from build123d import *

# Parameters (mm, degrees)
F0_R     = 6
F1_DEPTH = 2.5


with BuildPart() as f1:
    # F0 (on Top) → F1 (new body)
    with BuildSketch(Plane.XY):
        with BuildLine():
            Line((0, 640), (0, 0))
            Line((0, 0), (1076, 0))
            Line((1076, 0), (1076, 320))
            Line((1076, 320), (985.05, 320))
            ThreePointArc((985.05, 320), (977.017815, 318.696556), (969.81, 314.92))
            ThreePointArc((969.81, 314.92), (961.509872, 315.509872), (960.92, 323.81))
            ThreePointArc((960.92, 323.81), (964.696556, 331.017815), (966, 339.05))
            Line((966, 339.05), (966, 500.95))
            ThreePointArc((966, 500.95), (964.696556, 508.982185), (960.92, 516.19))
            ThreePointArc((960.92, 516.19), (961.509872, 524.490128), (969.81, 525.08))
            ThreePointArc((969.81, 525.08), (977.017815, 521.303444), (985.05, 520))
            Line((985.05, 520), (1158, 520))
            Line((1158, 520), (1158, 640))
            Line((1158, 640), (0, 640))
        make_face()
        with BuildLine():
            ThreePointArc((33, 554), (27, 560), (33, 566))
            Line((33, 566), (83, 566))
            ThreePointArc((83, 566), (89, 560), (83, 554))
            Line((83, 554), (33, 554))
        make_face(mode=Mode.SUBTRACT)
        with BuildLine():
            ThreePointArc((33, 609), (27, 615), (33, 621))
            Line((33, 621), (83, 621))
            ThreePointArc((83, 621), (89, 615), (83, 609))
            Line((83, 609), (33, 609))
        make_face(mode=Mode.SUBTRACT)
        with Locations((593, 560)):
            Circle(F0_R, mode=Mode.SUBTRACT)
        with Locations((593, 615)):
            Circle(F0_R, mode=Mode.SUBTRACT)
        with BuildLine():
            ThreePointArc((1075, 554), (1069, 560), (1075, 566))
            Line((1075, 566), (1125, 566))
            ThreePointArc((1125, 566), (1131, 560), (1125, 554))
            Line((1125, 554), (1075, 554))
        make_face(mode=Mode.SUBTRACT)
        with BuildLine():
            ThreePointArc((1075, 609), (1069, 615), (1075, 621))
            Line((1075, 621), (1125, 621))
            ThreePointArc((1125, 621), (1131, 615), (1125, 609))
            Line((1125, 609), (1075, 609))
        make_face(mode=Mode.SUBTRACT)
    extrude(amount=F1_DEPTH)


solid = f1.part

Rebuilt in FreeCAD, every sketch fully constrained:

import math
import FreeCAD as App
import Part
import Sketcher
from FreeCAD import Vector

doc = App.newDocument("Part")
body = doc.addObject("PartDesign::Body", "Body")

# Sketch on XY plane
sketch1 = body.newObject("Sketcher::SketchObject", "Sketch")
sketch1.AttachmentSupport = (doc.getObject("XY_Plane"), [""])
sketch1.MapMode = "FlatFace"
sketch1.addGeometry(Part.LineSegment(Vector(0, 640, 0), Vector(0, 0, 0)), False)
sketch1.addGeometry(Part.LineSegment(Vector(0, 0, 0), Vector(1076, 0, 0)), False)
sketch1.addGeometry(Part.LineSegment(Vector(1076, 0, 0), Vector(1076, 320, 0)), False)
sketch1.addGeometry(Part.LineSegment(Vector(1076, 320, 0), Vector(985.05, 320, 0)), False)
sketch1.addGeometry(Part.ArcOfCircle(Part.Circle(Vector(985.049999, 294.600003, 0), Vector(0, 0, 1), 25.399997), math.radians(89.999998), math.radians(126.8699)), False)
sketch1.addGeometry(Part.ArcOfCircle(Part.Circle(Vector(966, 320, 0), Vector(0, 0, 1), 6.35), math.radians(143.130103), math.radians(306.869897)), False)
sketch1.addGeometry(Part.ArcOfCircle(Part.Circle(Vector(940.600003, 339.049999, 0), Vector(0, 0, 1), 25.399997), math.radians(-36.8699), math.radians(0.000002)), False)
sketch1.addGeometry(Part.LineSegment(Vector(966, 339.05, 0), Vector(966, 500.95, 0)), False)
sketch1.addGeometry(Part.ArcOfCircle(Part.Circle(Vector(940.600003, 500.950001, 0), Vector(0, 0, 1), 25.399997), math.radians(-0.000002), math.radians(36.8699)), False)
sketch1.addGeometry(Part.ArcOfCircle(Part.Circle(Vector(966, 520, 0), Vector(0, 0, 1), 6.35), math.radians(53.130103), math.radians(216.869897)), False)
sketch1.addGeometry(Part.ArcOfCircle(Part.Circle(Vector(985.049999, 545.399997, 0), Vector(0, 0, 1), 25.399997), math.radians(-126.8699), math.radians(-89.999998)), False)
sketch1.addGeometry(Part.LineSegment(Vector(985.05, 520, 0), Vector(1158, 520, 0)), False)
sketch1.addGeometry(Part.LineSegment(Vector(1158, 520, 0), Vector(1158, 640, 0)), False)
sketch1.addGeometry(Part.LineSegment(Vector(1158, 640, 0), Vector(0, 640, 0)), False)
sketch1.addGeometry(Part.LineSegment(Vector(83, 554, 0), Vector(33, 554, 0)), False)
sketch1.addGeometry(Part.ArcOfCircle(Part.Circle(Vector(33, 560, 0), Vector(0, 0, 1), 6), math.radians(90), math.radians(270)), False)
sketch1.addGeometry(Part.LineSegment(Vector(33, 566, 0), Vector(83, 566, 0)), False)
sketch1.addGeometry(Part.ArcOfCircle(Part.Circle(Vector(83, 560, 0), Vector(0, 0, 1), 6), math.radians(-90), math.radians(90)), False)
sketch1.addGeometry(Part.Circle(Vector(593, 560, 0), Vector(0, 0, 1), 6), False)
sketch1.addGeometry(Part.LineSegment(Vector(1125, 554, 0), Vector(1075, 554, 0)), False)
sketch1.addGeometry(Part.ArcOfCircle(Part.Circle(Vector(1075, 560, 0), Vector(0, 0, 1), 6), math.radians(90), math.radians(270)), False)
sketch1.addGeometry(Part.LineSegment(Vector(1075, 566, 0), Vector(1125, 566, 0)), False)
sketch1.addGeometry(Part.ArcOfCircle(Part.Circle(Vector(1125, 560, 0), Vector(0, 0, 1), 6), math.radians(-90), math.radians(90)), False)
sketch1.addGeometry(Part.LineSegment(Vector(83, 609, 0), Vector(33, 609, 0)), False)
sketch1.addGeometry(Part.ArcOfCircle(Part.Circle(Vector(33, 615, 0), Vector(0, 0, 1), 6), math.radians(90), math.radians(270)), False)
sketch1.addGeometry(Part.LineSegment(Vector(33, 621, 0), Vector(83, 621, 0)), False)
sketch1.addGeometry(Part.ArcOfCircle(Part.Circle(Vector(83, 615, 0), Vector(0, 0, 1), 6), math.radians(-90), math.radians(90)), False)
sketch1.addGeometry(Part.Circle(Vector(593, 615, 0), Vector(0, 0, 1), 6), False)
sketch1.addGeometry(Part.LineSegment(Vector(1125, 609, 0), Vector(1075, 609, 0)), False)
sketch1.addGeometry(Part.ArcOfCircle(Part.Circle(Vector(1075, 615, 0), Vector(0, 0, 1), 6), math.radians(90), math.radians(270)), False)
sketch1.addGeometry(Part.LineSegment(Vector(1075, 621, 0), Vector(1125, 621, 0)), False)
sketch1.addGeometry(Part.ArcOfCircle(Part.Circle(Vector(1125, 615, 0), Vector(0, 0, 1), 6), math.radians(-90), math.radians(90)), False)
sketch1.addConstraint(Sketcher.Constraint("Coincident", 0, 2, 1, 1))
sketch1.addConstraint(Sketcher.Constraint("Coincident", 1, 2, 2, 1))
sketch1.addConstraint(Sketcher.Constraint("Coincident", 2, 2, 3, 1))
sketch1.addConstraint(Sketcher.Constraint("Tangent", 3, 2, 4, 1))
sketch1.addConstraint(Sketcher.Constraint("Tangent", 4, 2, 5, 2))
sketch1.addConstraint(Sketcher.Constraint("Tangent", 5, 1, 6, 1))
sketch1.addConstraint(Sketcher.Constraint("Tangent", 6, 2, 7, 1))
sketch1.addConstraint(Sketcher.Constraint("Tangent", 7, 2, 8, 1))
sketch1.addConstraint(Sketcher.Constraint("Tangent", 8, 2, 9, 2))
sketch1.addConstraint(Sketcher.Constraint("Tangent", 9, 1, 10, 1))
sketch1.addConstraint(Sketcher.Constraint("Tangent", 10, 2, 11, 1))
sketch1.addConstraint(Sketcher.Constraint("Coincident", 11, 2, 12, 1))
sketch1.addConstraint(Sketcher.Constraint("Coincident", 12, 2, 13, 1))
sketch1.addConstraint(Sketcher.Constraint("Coincident", 13, 2, 0, 1))
sketch1.addConstraint(Sketcher.Constraint("Tangent", 14, 2, 15, 2))
sketch1.addConstraint(Sketcher.Constraint("Tangent", 15, 1, 16, 1))
sketch1.addConstraint(Sketcher.Constraint("Tangent", 16, 2, 17, 2))
sketch1.addConstraint(Sketcher.Constraint("Tangent", 17, 1, 14, 1))
sketch1.addConstraint(Sketcher.Constraint("Tangent", 19, 2, 20, 2))
sketch1.addConstraint(Sketcher.Constraint("Tangent", 20, 1, 21, 1))
sketch1.addConstraint(Sketcher.Constraint("Tangent", 21, 2, 22, 2))
sketch1.addConstraint(Sketcher.Constraint("Tangent", 22, 1, 19, 1))
sketch1.addConstraint(Sketcher.Constraint("Tangent", 23, 2, 24, 2))
sketch1.addConstraint(Sketcher.Constraint("Tangent", 24, 1, 25, 1))
sketch1.addConstraint(Sketcher.Constraint("Tangent", 25, 2, 26, 2))
sketch1.addConstraint(Sketcher.Constraint("Tangent", 26, 1, 23, 1))
sketch1.addConstraint(Sketcher.Constraint("Tangent", 28, 2, 29, 2))
sketch1.addConstraint(Sketcher.Constraint("Tangent", 29, 1, 30, 1))
sketch1.addConstraint(Sketcher.Constraint("Tangent", 30, 2, 31, 2))
sketch1.addConstraint(Sketcher.Constraint("Tangent", 31, 1, 28, 1))
sketch1.addConstraint(Sketcher.Constraint("Vertical", 0))
sketch1.addConstraint(Sketcher.Constraint("Horizontal", 1))
sketch1.addConstraint(Sketcher.Constraint("Vertical", 2))
sketch1.addConstraint(Sketcher.Constraint("Horizontal", 3))
sketch1.addConstraint(Sketcher.Constraint("Vertical", 7))
sketch1.addConstraint(Sketcher.Constraint("Horizontal", 11))
sketch1.addConstraint(Sketcher.Constraint("Vertical", 12))
sketch1.addConstraint(Sketcher.Constraint("Horizontal", 13))
sketch1.addConstraint(Sketcher.Constraint("Horizontal", 14))
sketch1.addConstraint(Sketcher.Constraint("Horizontal", 16))
sketch1.addConstraint(Sketcher.Constraint("Horizontal", 19))
sketch1.addConstraint(Sketcher.Constraint("Horizontal", 21))
sketch1.addConstraint(Sketcher.Constraint("Horizontal", 23))
sketch1.addConstraint(Sketcher.Constraint("Horizontal", 25))
sketch1.addConstraint(Sketcher.Constraint("Horizontal", 28))
sketch1.addConstraint(Sketcher.Constraint("Horizontal", 30))
sketch1.addConstraint(Sketcher.Constraint("Coincident", 0, 2, -1, 1))
sketch1.addConstraint(Sketcher.Constraint("Equal", 4, 6))
sketch1.addConstraint(Sketcher.Constraint("Equal", 6, 8))
sketch1.addConstraint(Sketcher.Constraint("Equal", 5, 9))
sketch1.addConstraint(Sketcher.Constraint("Equal", 8, 10))
sketch1.addConstraint(Sketcher.Constraint("Equal", 17, 18))
sketch1.addConstraint(Sketcher.Constraint("Equal", 18, 20))
sketch1.addConstraint(Sketcher.Constraint("Equal", 22, 24))
sketch1.addConstraint(Sketcher.Constraint("Equal", 26, 27))
sketch1.addConstraint(Sketcher.Constraint("Equal", 27, 29))
sketch1.addConstraint(Sketcher.Constraint("Horizontal", 17, 3, 18, 3))
sketch1.addConstraint(Sketcher.Constraint("Horizontal", 18, 3, 20, 3))
sketch1.addConstraint(Sketcher.Constraint("Horizontal", 26, 3, 27, 3))
sketch1.addConstraint(Sketcher.Constraint("Horizontal", 27, 3, 29, 3))
sketch1.addConstraint(Sketcher.Constraint("Horizontal", 5, 3, 2, 2))
sketch1.addConstraint(Sketcher.Constraint("Horizontal", 9, 3, 10, 2))
sketch1.addConstraint(Sketcher.Constraint("Vertical", 5, 3, 9, 3))
sketch1.addConstraint(Sketcher.Constraint("Vertical", 15, 3, 24, 3))
sketch1.addConstraint(Sketcher.Constraint("Vertical", 17, 3, 26, 3))
sketch1.addConstraint(Sketcher.Constraint("Vertical", 18, 3, 27, 3))
sketch1.addConstraint(Sketcher.Constraint("Vertical", 20, 3, 29, 3))
sketch1.addConstraint(Sketcher.Constraint("Vertical", 22, 3, 31, 3))
sketch1.addConstraint(Sketcher.Constraint("Vertical", 9, 3, 6, 2))
sketch1.addConstraint(Sketcher.Constraint("Equal", 16, 19))
sketch1.addConstraint(Sketcher.Constraint("Diameter", 18, 12.0))
sketch1.addConstraint(Sketcher.Constraint("DistanceX", 1, 1, 1, 2, 1076.0))
sketch1.addConstraint(Sketcher.Constraint("DistanceX", 13, 2, 13, 1, 1158.0))
sketch1.addConstraint(Sketcher.Constraint("DistanceX", 14, 2, 14, 1, 50.0))
sketch1.addConstraint(Sketcher.Constraint("DistanceY", 0, 2, 0, 1, 640.0))
sketch1.addConstraint(Sketcher.Constraint("DistanceY", 2, 1, 2, 2, 320.0))
sketch1.addConstraint(Sketcher.Constraint("DistanceY", 12, 1, 12, 2, 120.0))
sketch1.addConstraint(Sketcher.Constraint("Radius", 5, 6.35))
sketch1.addConstraint(Sketcher.Constraint("DistanceY", 7, 1, 7, 2, 161.9))
sketch1.addConstraint(Sketcher.Constraint("DistanceX", -1, 1, 5, 3, 966.0))
sketch1.addConstraint(Sketcher.Constraint("DistanceX", -1, 1, 15, 3, 33.0))
sketch1.addConstraint(Sketcher.Constraint("DistanceY", -1, 1, 15, 3, 560.0))
sketch1.addConstraint(Sketcher.Constraint("DistanceX", -1, 1, 18, 3, 593.0))
sketch1.addConstraint(Sketcher.Constraint("DistanceX", -1, 1, 20, 3, 1075.0))
sketch1.addConstraint(Sketcher.Constraint("DistanceY", -1, 1, 24, 3, 615.0))
pad1 = body.newObject("PartDesign::Pad", "Pad")
pad1.Profile = sketch1
pad1.Length = 2.5

doc.recompute()
